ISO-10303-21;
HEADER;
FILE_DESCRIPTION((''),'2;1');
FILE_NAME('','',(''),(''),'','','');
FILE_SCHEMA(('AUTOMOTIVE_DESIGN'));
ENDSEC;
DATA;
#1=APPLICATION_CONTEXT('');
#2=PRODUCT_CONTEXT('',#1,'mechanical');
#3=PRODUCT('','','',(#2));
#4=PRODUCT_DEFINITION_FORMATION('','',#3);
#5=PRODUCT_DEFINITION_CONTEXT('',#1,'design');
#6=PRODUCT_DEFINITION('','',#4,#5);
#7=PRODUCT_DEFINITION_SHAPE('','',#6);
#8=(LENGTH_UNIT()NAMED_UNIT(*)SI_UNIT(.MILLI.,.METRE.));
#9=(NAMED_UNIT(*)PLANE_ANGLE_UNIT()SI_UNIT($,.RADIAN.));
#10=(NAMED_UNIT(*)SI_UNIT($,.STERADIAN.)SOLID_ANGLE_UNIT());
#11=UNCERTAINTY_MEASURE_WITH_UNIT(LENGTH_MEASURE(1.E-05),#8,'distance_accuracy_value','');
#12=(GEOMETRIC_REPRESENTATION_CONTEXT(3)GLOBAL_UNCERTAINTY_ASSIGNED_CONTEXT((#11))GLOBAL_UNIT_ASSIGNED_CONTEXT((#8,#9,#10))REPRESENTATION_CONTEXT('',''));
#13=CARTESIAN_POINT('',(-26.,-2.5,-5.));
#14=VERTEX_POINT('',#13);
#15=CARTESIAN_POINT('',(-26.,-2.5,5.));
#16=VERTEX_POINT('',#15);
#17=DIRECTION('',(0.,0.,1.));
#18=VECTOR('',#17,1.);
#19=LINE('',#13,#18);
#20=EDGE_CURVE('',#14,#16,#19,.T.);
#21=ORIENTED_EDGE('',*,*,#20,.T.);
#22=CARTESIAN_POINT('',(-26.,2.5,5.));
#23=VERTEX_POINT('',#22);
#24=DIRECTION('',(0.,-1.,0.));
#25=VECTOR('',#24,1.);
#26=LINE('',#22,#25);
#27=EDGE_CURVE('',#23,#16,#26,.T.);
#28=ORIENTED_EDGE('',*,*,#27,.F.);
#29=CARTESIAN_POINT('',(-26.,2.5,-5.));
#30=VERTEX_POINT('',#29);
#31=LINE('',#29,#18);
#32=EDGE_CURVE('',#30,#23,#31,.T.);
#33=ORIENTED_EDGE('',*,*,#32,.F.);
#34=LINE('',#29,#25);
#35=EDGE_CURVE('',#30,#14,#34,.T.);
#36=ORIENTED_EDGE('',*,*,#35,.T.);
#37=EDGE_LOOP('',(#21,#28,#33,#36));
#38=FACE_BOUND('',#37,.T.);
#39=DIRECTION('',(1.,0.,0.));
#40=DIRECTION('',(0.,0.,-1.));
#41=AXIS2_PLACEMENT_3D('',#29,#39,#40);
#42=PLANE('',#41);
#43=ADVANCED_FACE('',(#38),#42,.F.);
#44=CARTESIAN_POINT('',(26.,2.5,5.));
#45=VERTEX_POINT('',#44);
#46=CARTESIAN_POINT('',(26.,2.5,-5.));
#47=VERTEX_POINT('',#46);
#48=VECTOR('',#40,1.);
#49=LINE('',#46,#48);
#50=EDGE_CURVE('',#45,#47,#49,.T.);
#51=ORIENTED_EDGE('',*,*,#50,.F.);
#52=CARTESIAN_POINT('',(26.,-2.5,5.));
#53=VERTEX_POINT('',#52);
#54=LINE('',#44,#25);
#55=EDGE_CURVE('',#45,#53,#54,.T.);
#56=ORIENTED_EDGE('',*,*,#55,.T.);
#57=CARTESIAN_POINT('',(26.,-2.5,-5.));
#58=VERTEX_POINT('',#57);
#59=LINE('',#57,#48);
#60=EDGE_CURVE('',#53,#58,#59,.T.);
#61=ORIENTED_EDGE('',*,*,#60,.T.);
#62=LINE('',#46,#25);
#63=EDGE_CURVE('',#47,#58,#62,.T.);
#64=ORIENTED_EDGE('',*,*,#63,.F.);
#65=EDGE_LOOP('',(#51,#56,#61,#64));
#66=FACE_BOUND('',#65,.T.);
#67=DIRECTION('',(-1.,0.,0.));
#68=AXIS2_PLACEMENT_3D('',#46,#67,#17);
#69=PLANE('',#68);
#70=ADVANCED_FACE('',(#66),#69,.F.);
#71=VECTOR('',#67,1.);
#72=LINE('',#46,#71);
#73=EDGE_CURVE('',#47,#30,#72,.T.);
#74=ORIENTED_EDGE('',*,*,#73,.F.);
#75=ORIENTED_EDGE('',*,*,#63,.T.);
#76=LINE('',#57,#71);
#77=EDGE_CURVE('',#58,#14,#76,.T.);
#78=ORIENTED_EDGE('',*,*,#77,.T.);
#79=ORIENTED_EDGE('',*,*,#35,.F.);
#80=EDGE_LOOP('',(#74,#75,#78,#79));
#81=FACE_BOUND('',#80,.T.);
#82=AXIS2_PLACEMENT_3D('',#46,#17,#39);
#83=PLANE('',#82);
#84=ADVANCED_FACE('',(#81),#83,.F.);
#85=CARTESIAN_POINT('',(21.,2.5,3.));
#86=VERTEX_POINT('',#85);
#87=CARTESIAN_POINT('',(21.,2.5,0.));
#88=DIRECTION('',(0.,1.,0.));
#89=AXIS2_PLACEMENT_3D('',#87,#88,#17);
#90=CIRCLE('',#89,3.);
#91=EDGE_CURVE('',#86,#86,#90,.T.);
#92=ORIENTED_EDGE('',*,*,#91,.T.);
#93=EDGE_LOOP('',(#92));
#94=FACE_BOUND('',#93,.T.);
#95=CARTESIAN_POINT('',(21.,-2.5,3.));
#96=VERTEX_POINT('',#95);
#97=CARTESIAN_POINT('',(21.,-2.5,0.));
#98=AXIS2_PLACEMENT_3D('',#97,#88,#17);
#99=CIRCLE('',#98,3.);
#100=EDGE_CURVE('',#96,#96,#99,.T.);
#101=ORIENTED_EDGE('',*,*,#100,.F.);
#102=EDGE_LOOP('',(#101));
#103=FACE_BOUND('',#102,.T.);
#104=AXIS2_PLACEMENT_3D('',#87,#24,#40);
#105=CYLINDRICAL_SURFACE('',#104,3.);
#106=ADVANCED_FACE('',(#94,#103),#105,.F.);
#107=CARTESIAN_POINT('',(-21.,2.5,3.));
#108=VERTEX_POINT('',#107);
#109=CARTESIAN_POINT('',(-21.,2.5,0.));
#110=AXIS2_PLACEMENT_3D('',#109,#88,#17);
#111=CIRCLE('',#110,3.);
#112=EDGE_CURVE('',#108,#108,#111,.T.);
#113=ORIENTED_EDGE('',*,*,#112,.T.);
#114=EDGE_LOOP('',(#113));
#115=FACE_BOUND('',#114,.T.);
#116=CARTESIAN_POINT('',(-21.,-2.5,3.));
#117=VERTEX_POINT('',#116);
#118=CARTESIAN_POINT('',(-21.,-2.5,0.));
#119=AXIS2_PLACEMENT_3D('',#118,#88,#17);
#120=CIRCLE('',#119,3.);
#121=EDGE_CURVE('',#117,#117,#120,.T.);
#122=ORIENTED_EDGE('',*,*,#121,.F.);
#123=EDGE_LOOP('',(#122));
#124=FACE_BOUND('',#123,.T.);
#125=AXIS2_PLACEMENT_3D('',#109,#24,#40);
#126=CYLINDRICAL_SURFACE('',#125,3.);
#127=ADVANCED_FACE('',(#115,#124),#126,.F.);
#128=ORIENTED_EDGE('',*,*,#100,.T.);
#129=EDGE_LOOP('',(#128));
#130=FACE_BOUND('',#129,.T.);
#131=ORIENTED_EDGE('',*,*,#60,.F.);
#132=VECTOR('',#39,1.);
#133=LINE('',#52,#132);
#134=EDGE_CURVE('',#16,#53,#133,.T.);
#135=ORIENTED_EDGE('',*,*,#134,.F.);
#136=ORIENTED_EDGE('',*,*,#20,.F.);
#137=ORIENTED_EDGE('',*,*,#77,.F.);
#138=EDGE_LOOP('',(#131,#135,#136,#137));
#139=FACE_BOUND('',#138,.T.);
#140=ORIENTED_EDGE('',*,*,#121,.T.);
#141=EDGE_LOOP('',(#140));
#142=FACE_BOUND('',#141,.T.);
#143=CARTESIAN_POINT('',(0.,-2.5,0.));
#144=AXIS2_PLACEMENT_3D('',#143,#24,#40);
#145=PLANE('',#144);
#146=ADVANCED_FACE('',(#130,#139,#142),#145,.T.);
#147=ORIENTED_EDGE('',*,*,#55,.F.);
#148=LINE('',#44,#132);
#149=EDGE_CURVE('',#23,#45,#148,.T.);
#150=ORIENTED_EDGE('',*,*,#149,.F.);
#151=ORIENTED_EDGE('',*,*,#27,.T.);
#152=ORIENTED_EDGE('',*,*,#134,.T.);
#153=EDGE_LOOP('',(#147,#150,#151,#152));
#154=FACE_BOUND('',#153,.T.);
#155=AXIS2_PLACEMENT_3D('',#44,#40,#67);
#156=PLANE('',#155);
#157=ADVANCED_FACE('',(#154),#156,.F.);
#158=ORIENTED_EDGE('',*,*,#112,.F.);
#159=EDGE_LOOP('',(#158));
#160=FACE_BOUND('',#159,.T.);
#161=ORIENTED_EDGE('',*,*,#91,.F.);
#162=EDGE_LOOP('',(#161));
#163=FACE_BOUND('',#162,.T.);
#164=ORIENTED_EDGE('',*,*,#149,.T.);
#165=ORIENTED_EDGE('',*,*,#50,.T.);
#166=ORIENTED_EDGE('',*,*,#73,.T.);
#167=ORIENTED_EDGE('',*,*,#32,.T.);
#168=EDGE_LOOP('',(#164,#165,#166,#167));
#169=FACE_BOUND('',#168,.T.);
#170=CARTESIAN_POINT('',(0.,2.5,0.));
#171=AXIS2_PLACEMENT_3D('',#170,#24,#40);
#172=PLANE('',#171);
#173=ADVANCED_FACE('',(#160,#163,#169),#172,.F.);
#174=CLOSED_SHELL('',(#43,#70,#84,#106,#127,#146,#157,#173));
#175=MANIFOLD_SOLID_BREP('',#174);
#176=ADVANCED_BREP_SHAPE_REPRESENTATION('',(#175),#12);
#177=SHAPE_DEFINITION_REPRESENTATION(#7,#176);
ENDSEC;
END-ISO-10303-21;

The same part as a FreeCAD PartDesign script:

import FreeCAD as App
import Part
import Sketcher
Q = App.Units.Quantity

doc = App.newDocument("Part")
body = doc.addObject("PartDesign::Body", "Body")

# Sketch on XZ plane
sketch1 = doc.addObject("Sketcher::SketchObject", "Sketch")
body.addObject(sketch1)
sketch1.AttachmentSupport = (doc.XZ_Plane, [""])
sketch1.MapMode = "FlatFace"
sketch1.addGeometry([
    Part.LineSegment(App.Vector(-26, -5, 0), App.Vector(-26, 5, 0)),  # 0
    Part.LineSegment(App.Vector(-26, 5, 0), App.Vector(26, 5, 0)),  # 1
    Part.LineSegment(App.Vector(26, 5, 0), App.Vector(26, -5, 0)),  # 2
    Part.LineSegment(App.Vector(26, -5, 0), App.Vector(-26, -5, 0)),  # 3
    Part.Circle(App.Vector(-21, 0, 0), App.Vector(0, 0, 1), 3),  # 4
    Part.Circle(App.Vector(21, 0, 0), App.Vector(0, 0, 1), 3),  # 5
], False)
sketch1.addConstraint([
    Sketcher.Constraint("Coincident", 0, 2, 1, 1),
    Sketcher.Constraint("Coincident", 1, 2, 2, 1),
    Sketcher.Constraint("Coincident", 2, 2, 3, 1),
    Sketcher.Constraint("Coincident", 3, 2, 0, 1),
    Sketcher.Constraint("Vertical", 0),
    Sketcher.Constraint("Horizontal", 1),
    Sketcher.Constraint("Vertical", 2),
    Sketcher.Constraint("Horizontal", 3),
    Sketcher.Constraint("Equal", 4, 5),
    Sketcher.Constraint("Symmetric", 4, 3, 5, 3, -1, 1),
    Sketcher.Constraint("Symmetric", 0, 2, 2, 2, -1, 1),
    Sketcher.Constraint("PointOnObject", 4, 3, -1),
    Sketcher.Constraint("Diameter", 4, Q("6 mm")),
    Sketcher.Constraint("DistanceX", 1, 1, 1, 2, Q("52 mm")),
    Sketcher.Constraint("DistanceY", 0, 1, 0, 2, Q("10 mm")),
    Sketcher.Constraint("DistanceX", 4, 3, -1, 1, Q("21 mm")),
])
pad1 = doc.addObject("PartDesign::Pad", "Pad")
body.addObject(pad1)
pad1.Profile = sketch1
pad1.Length = 5
pad1.Midplane = True

doc.recompute()
